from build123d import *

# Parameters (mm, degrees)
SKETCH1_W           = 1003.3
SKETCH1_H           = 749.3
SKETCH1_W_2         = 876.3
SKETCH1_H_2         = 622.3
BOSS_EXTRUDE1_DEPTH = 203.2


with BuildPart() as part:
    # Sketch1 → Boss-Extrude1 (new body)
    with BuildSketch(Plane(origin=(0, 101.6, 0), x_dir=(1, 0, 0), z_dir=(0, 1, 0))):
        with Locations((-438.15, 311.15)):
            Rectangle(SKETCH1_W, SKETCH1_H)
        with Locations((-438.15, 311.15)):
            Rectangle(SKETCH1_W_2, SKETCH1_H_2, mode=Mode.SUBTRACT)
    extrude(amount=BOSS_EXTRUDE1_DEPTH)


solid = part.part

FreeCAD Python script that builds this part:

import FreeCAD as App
import Part
import Sketcher

V = App.Vector
Q = App.Units.Quantity


def add_polygon(sketch, points):
    """Adds a closed chain of lines whose ends are joined by coincident constraints."""
    first, n = sketch.GeometryCount, len(points)
    for a, b in zip(points, points[1:] + points[:1]):
        sketch.addGeometry(Part.LineSegment(App.Vector(*a, 0), App.Vector(*b, 0)), False)
    for i in range(n):
        sketch.addConstraint(Sketcher.Constraint("Coincident", first + i, 2, first + (i + 1) % n, 1))

doc = App.newDocument("Part")
params = doc.addObject("Spreadsheet::Sheet", "Params")
for row, (alias, value) in enumerate([
    ("sketch1_width", "39.5 in"),
    ("sketch1_width2", "34.5 in"),
    ("sketch1_height", "29.5 in"),
    ("sketch1_height2", "24.5 in"),
    ("pad1_length", "8 in"),
], start=1):
    params.set(f"A{row}", alias)
    params.set(f"B{row}", "=" + value)
    params.setAlias(f"B{row}", alias)

body = doc.addObject("PartDesign::Body", "Body")

sketch1 = body.newObject("Sketcher::SketchObject", "Sketch")
sketch1.AttachmentSupport = (doc.getObject("XZ_Plane"), [""])
sketch1.MapMode = "FlatFace"
sketch1.AttachmentOffset = App.Placement(V(0, 0, -4 * 25.4), App.Rotation())
add_polygon(sketch1, [(-940, -686), (-940, 64), (64, 64), (64, -686)])
add_polygon(sketch1, [(0, 0), (-876, 0), (-876, -622), (0, -622)])
sketch1.addConstraint(Sketcher.Constraint("Vertical", 0))
sketch1.addConstraint(Sketcher.Constraint("Horizontal", 1))
sketch1.addConstraint(Sketcher.Constraint("Vertical", 2))
sketch1.addConstraint(Sketcher.Constraint("Horizontal", 3))
sketch1.addConstraint(Sketcher.Constraint("Horizontal", 4))
sketch1.addConstraint(Sketcher.Constraint("Vertical", 5))
sketch1.addConstraint(Sketcher.Constraint("Horizontal", 6))
sketch1.addConstraint(Sketcher.Constraint("Vertical", 7))
sketch1.addConstraint(Sketcher.Constraint("Coincident", 7, 2, -1, 1))
sketch1.addConstraint(Sketcher.Constraint("DistanceX", 1, 1, 1, 2, Q("39.5 in")))
sketch1.addConstraint(Sketcher.Constraint("DistanceX", 4, 2, 4, 1, Q("34.5 in")))
sketch1.addConstraint(Sketcher.Constraint("DistanceY", 0, 1, 0, 2, Q("29.5 in")))
sketch1.addConstraint(Sketcher.Constraint("DistanceY", 5, 2, 5, 1, Q("24.5 in")))
sketch1.addConstraint(Sketcher.Constraint("DistanceX", 0, 2, -1, 1, Q("37 in")))
sketch1.addConstraint(Sketcher.Constraint("DistanceY", 2, 2, -1, 1, Q("27 in")))
sketch1.setExpression("Constraints[17]", "Params.sketch1_width")
sketch1.setExpression("Constraints[18]", "Params.sketch1_width2")
sketch1.setExpression("Constraints[19]", "Params.sketch1_height")
sketch1.setExpression("Constraints[20]", "Params.sketch1_height2")
pad1 = body.newObject("PartDesign::Pad", "Pad")
pad1.Profile = sketch1
pad1.setExpression("Length", "Params.pad1_length")
pad1.Reversed = True

doc.recompute()
